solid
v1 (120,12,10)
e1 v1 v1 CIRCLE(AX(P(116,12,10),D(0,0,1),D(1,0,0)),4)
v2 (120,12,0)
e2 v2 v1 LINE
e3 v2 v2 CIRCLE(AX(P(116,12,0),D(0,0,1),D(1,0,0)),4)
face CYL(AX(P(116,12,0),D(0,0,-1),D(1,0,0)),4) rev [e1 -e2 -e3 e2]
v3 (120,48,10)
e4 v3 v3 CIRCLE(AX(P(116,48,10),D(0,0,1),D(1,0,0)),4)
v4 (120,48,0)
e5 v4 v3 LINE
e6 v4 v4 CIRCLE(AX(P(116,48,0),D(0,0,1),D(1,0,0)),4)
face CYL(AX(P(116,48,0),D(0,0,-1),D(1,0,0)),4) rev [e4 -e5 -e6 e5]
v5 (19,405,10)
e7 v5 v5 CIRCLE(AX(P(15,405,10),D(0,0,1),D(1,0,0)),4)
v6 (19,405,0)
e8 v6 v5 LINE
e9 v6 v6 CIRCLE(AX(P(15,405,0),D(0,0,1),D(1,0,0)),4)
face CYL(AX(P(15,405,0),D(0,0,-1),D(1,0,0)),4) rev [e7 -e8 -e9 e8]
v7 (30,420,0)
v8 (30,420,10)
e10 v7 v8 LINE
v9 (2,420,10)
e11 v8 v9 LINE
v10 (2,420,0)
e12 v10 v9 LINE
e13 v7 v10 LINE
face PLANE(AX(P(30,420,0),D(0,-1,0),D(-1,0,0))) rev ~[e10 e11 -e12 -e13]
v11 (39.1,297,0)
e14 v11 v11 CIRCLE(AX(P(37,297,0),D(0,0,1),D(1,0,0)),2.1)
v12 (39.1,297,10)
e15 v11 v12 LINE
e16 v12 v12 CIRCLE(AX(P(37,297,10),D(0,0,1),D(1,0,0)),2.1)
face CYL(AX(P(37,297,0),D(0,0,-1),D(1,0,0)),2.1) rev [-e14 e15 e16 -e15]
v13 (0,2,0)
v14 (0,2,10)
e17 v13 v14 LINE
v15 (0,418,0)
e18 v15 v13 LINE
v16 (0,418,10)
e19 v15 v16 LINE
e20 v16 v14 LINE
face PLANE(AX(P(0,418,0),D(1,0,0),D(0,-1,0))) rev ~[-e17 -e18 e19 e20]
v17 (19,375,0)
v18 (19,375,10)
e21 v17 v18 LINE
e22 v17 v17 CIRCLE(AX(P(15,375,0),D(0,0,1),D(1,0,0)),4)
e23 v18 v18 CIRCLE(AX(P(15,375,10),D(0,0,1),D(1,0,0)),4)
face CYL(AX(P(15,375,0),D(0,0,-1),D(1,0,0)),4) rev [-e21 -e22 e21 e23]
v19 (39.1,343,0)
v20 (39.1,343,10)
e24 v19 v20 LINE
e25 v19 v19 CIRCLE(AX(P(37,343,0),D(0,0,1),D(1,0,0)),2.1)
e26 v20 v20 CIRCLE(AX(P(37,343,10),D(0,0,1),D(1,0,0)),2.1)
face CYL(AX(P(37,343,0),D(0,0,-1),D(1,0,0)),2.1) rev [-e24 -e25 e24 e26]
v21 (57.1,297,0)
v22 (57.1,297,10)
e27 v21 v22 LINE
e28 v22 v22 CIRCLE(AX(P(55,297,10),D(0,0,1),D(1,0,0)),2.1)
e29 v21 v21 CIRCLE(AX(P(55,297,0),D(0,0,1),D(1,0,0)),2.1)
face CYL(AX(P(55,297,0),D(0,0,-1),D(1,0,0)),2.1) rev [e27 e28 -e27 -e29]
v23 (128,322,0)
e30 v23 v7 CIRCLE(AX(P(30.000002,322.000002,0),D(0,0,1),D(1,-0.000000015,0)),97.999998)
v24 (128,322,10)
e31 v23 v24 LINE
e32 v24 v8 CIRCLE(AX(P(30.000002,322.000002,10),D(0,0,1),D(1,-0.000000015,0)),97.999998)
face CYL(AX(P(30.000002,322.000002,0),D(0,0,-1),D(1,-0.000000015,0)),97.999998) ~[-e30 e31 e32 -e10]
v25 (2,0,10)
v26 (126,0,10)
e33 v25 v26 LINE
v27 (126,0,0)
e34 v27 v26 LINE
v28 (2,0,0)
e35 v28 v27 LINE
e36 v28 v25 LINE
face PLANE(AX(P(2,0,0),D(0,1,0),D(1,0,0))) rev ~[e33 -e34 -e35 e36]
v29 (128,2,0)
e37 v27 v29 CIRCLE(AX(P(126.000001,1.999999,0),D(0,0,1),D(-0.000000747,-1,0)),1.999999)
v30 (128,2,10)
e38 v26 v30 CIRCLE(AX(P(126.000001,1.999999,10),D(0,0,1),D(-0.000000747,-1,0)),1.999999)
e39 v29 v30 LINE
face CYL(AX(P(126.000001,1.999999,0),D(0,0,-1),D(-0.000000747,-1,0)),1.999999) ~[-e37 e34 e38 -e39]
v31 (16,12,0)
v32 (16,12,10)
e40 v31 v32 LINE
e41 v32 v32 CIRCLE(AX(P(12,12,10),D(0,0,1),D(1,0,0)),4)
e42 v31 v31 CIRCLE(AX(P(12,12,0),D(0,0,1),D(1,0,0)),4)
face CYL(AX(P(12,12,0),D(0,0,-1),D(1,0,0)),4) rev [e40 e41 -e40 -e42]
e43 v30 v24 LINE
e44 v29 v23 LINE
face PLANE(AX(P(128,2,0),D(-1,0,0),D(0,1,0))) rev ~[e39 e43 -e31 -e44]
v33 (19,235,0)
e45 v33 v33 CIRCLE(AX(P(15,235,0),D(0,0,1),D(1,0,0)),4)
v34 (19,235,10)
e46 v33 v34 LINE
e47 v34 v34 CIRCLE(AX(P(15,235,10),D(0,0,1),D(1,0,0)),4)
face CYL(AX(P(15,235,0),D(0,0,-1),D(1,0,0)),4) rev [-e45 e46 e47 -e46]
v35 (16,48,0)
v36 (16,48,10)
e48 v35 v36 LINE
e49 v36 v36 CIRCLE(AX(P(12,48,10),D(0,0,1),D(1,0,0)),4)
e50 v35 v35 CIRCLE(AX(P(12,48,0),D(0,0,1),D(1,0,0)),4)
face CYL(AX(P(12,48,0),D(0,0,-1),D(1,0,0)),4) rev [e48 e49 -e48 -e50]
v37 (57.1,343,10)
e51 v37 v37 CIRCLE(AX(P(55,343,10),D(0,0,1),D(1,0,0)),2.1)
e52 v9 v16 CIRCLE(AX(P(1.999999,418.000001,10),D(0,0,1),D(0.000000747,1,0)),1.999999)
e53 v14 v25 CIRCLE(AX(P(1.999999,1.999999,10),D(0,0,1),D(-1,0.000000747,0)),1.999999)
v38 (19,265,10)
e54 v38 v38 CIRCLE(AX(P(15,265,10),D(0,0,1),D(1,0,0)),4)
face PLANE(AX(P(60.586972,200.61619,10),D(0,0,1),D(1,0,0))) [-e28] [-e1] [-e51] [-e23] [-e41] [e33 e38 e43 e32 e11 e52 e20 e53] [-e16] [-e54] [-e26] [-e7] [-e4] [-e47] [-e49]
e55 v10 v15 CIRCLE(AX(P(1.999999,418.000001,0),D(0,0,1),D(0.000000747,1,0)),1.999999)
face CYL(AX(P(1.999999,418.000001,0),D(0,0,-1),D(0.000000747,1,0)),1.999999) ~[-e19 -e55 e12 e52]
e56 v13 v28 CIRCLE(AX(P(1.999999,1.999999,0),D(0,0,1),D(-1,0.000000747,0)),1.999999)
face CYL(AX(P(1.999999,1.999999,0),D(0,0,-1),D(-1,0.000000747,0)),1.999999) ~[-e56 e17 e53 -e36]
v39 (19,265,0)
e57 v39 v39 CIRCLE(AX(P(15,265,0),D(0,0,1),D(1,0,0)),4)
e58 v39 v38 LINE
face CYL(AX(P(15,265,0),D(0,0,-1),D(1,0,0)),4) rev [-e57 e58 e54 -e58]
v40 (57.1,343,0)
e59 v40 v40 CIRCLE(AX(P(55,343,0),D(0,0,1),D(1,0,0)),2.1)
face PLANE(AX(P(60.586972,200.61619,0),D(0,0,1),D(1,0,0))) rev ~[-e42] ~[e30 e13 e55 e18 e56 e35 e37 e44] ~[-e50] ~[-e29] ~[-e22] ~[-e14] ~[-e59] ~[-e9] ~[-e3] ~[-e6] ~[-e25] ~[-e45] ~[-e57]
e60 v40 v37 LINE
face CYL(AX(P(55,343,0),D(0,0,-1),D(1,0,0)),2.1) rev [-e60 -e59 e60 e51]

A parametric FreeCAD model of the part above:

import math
import FreeCAD as App
import Part
import Sketcher
from FreeCAD import Vector
Q = App.Units.Quantity

doc = App.newDocument("Part")
body = doc.addObject("PartDesign::Body", "Body")

sketch1 = body.newObject("Sketcher::SketchObject", "Sketch")
sketch1.AttachmentSupport = (doc.getObject("XY_Plane"), [""])
sketch1.MapMode = "FlatFace"
sketch1.addGeometry([
    Part.ArcOfCircle(Part.Circle(Vector(2, 2, 0), Vector(0, 0, 1), 2), math.radians(180), math.radians(270)),
    Part.LineSegment(Vector(2, 0, 0), Vector(126, 0, 0)),
    Part.ArcOfCircle(Part.Circle(Vector(126, 2, 0), Vector(0, 0, 1), 2), math.radians(-90), math.radians(0)),
    Part.LineSegment(Vector(128, 2, 0), Vector(128, 322, 0)),
    Part.ArcOfCircle(Part.Circle(Vector(30, 322, 0), Vector(0, 0, 1), 98), math.radians(0), math.radians(90)),
    Part.LineSegment(Vector(30, 420, 0), Vector(2, 420, 0)),
    Part.ArcOfCircle(Part.Circle(Vector(2, 418, 0), Vector(0, 0, 1), 2), math.radians(90), math.radians(180)),
    Part.LineSegment(Vector(0, 418, 0), Vector(0, 2, 0)),
    Part.Circle(Vector(12, 12, 0), Vector(0, 0, 1), 4),
    Part.Circle(Vector(12, 48, 0), Vector(0, 0, 1), 4),
    Part.Circle(Vector(116, 12, 0), Vector(0, 0, 1), 4),
    Part.Circle(Vector(116, 48, 0), Vector(0, 0, 1), 4),
    Part.Circle(Vector(15, 235, 0), Vector(0, 0, 1), 4),
    Part.Circle(Vector(15, 265, 0), Vector(0, 0, 1), 4),
    Part.Circle(Vector(37, 297, 0), Vector(0, 0, 1), 2.1),
    Part.Circle(Vector(55, 297, 0), Vector(0, 0, 1), 2.1),
    Part.Circle(Vector(15, 375, 0), Vector(0, 0, 1), 4),
    Part.Circle(Vector(15, 405, 0), Vector(0, 0, 1), 4),
    Part.Circle(Vector(37, 343, 0), Vector(0, 0, 1), 2.1),
    Part.Circle(Vector(55, 343, 0), Vector(0, 0, 1), 2.1),
], False)
sketch1.addConstraint([
    Sketcher.Constraint("Tangent", 0, 2, 1, 1),
    Sketcher.Constraint("Tangent", 1, 2, 2, 1),
    Sketcher.Constraint("Tangent", 2, 2, 3, 1),
    Sketcher.Constraint("Tangent", 3, 2, 4, 1),
    Sketcher.Constraint("Tangent", 4, 2, 5, 1),
    Sketcher.Constraint("Tangent", 5, 2, 6, 1),
    Sketcher.Constraint("Tangent", 6, 2, 7, 1),
    Sketcher.Constraint("Tangent", 7, 2, 0, 1),
    Sketcher.Constraint("Horizontal", 1),
    Sketcher.Constraint("Vertical", 3),
    Sketcher.Constraint("Horizontal", 5),
    Sketcher.Constraint("Vertical", 7),
    Sketcher.Constraint("Equal", 0, 2),
    Sketcher.Constraint("Equal", 2, 6),
    Sketcher.Constraint("Equal", 8, 9),
    Sketcher.Constraint("Equal", 9, 10),
    Sketcher.Constraint("Equal", 10, 11),
    Sketcher.Constraint("Equal", 11, 12),
    Sketcher.Constraint("Equal", 12, 13),
    Sketcher.Constraint("Equal", 14, 15),
    Sketcher.Constraint("Equal", 13, 16),
    Sketcher.Constraint("Equal", 16, 17),
    Sketcher.Constraint("Equal", 15, 18),
    Sketcher.Constraint("Equal", 18, 19),
    Sketcher.Constraint("PointOnObject", 0, 2, -1),
    Sketcher.Constraint("PointOnObject", 6, 2, -2),
    Sketcher.Constraint("Horizontal", 8, 3, 10, 3),
    Sketcher.Constraint("Horizontal", 9, 3, 11, 3),
    Sketcher.Constraint("Horizontal", 14, 3, 15, 3),
    Sketcher.Constraint("Horizontal", 18, 3, 19, 3),
    Sketcher.Constraint("Vertical", 8, 3, 9, 3),
    Sketcher.Constraint("Vertical", 10, 3, 11, 3),
    Sketcher.Constraint("Vertical", 12, 3, 13, 3),
    Sketcher.Constraint("Vertical", 13, 3, 16, 3),
    Sketcher.Constraint("Vertical", 16, 3, 17, 3),
    Sketcher.Constraint("Vertical", 14, 3, 18, 3),
    Sketcher.Constraint("Vertical", 15, 3, 19, 3),
    Sketcher.Constraint("Diameter", 8, Q("8 mm")),
    Sketcher.Constraint("Radius", 0, Q("1.999999 mm")),
    Sketcher.Constraint("Radius", 4, Q("97.999998 mm")),
    Sketcher.Constraint("Diameter", 14, Q("4.2 mm")),
    Sketcher.Constraint("DistanceX", 1, 1, 1, 2, Q("124 mm")),
    Sketcher.Constraint("DistanceY", 3, 1, 3, 2, Q("320 mm")),
    Sketcher.Constraint("DistanceX", -1, 1, 8, 3, Q("12 mm")),
    Sketcher.Constraint("DistanceY", -1, 1, 8, 3, Q("12 mm")),
    Sketcher.Constraint("DistanceY", -1, 1, 9, 3, Q("48 mm")),
    Sketcher.Constraint("DistanceX", -1, 1, 10, 3, Q("116 mm")),
    Sketcher.Constraint("DistanceX", -1, 1, 12, 3, Q("15 mm")),
    Sketcher.Constraint("DistanceY", -1, 1, 12, 3, Q("235 mm")),
    Sketcher.Constraint("DistanceY", -1, 1, 13, 3, Q("265 mm")),
    Sketcher.Constraint("DistanceX", -1, 1, 14, 3, Q("37 mm")),
    Sketcher.Constraint("DistanceY", -1, 1, 14, 3, Q("297 mm")),
    Sketcher.Constraint("DistanceX", -1, 1, 15, 3, Q("55 mm")),
    Sketcher.Constraint("DistanceY", -1, 1, 16, 3, Q("375 mm")),
    Sketcher.Constraint("DistanceY", -1, 1, 17, 3, Q("405 mm")),
    Sketcher.Constraint("DistanceY", -1, 1, 18, 3, Q("343 mm")),
])
pad1 = body.newObject("PartDesign::Pad", "Pad")
pad1.Profile = sketch1
pad1.Length = 10

doc.recompute()
